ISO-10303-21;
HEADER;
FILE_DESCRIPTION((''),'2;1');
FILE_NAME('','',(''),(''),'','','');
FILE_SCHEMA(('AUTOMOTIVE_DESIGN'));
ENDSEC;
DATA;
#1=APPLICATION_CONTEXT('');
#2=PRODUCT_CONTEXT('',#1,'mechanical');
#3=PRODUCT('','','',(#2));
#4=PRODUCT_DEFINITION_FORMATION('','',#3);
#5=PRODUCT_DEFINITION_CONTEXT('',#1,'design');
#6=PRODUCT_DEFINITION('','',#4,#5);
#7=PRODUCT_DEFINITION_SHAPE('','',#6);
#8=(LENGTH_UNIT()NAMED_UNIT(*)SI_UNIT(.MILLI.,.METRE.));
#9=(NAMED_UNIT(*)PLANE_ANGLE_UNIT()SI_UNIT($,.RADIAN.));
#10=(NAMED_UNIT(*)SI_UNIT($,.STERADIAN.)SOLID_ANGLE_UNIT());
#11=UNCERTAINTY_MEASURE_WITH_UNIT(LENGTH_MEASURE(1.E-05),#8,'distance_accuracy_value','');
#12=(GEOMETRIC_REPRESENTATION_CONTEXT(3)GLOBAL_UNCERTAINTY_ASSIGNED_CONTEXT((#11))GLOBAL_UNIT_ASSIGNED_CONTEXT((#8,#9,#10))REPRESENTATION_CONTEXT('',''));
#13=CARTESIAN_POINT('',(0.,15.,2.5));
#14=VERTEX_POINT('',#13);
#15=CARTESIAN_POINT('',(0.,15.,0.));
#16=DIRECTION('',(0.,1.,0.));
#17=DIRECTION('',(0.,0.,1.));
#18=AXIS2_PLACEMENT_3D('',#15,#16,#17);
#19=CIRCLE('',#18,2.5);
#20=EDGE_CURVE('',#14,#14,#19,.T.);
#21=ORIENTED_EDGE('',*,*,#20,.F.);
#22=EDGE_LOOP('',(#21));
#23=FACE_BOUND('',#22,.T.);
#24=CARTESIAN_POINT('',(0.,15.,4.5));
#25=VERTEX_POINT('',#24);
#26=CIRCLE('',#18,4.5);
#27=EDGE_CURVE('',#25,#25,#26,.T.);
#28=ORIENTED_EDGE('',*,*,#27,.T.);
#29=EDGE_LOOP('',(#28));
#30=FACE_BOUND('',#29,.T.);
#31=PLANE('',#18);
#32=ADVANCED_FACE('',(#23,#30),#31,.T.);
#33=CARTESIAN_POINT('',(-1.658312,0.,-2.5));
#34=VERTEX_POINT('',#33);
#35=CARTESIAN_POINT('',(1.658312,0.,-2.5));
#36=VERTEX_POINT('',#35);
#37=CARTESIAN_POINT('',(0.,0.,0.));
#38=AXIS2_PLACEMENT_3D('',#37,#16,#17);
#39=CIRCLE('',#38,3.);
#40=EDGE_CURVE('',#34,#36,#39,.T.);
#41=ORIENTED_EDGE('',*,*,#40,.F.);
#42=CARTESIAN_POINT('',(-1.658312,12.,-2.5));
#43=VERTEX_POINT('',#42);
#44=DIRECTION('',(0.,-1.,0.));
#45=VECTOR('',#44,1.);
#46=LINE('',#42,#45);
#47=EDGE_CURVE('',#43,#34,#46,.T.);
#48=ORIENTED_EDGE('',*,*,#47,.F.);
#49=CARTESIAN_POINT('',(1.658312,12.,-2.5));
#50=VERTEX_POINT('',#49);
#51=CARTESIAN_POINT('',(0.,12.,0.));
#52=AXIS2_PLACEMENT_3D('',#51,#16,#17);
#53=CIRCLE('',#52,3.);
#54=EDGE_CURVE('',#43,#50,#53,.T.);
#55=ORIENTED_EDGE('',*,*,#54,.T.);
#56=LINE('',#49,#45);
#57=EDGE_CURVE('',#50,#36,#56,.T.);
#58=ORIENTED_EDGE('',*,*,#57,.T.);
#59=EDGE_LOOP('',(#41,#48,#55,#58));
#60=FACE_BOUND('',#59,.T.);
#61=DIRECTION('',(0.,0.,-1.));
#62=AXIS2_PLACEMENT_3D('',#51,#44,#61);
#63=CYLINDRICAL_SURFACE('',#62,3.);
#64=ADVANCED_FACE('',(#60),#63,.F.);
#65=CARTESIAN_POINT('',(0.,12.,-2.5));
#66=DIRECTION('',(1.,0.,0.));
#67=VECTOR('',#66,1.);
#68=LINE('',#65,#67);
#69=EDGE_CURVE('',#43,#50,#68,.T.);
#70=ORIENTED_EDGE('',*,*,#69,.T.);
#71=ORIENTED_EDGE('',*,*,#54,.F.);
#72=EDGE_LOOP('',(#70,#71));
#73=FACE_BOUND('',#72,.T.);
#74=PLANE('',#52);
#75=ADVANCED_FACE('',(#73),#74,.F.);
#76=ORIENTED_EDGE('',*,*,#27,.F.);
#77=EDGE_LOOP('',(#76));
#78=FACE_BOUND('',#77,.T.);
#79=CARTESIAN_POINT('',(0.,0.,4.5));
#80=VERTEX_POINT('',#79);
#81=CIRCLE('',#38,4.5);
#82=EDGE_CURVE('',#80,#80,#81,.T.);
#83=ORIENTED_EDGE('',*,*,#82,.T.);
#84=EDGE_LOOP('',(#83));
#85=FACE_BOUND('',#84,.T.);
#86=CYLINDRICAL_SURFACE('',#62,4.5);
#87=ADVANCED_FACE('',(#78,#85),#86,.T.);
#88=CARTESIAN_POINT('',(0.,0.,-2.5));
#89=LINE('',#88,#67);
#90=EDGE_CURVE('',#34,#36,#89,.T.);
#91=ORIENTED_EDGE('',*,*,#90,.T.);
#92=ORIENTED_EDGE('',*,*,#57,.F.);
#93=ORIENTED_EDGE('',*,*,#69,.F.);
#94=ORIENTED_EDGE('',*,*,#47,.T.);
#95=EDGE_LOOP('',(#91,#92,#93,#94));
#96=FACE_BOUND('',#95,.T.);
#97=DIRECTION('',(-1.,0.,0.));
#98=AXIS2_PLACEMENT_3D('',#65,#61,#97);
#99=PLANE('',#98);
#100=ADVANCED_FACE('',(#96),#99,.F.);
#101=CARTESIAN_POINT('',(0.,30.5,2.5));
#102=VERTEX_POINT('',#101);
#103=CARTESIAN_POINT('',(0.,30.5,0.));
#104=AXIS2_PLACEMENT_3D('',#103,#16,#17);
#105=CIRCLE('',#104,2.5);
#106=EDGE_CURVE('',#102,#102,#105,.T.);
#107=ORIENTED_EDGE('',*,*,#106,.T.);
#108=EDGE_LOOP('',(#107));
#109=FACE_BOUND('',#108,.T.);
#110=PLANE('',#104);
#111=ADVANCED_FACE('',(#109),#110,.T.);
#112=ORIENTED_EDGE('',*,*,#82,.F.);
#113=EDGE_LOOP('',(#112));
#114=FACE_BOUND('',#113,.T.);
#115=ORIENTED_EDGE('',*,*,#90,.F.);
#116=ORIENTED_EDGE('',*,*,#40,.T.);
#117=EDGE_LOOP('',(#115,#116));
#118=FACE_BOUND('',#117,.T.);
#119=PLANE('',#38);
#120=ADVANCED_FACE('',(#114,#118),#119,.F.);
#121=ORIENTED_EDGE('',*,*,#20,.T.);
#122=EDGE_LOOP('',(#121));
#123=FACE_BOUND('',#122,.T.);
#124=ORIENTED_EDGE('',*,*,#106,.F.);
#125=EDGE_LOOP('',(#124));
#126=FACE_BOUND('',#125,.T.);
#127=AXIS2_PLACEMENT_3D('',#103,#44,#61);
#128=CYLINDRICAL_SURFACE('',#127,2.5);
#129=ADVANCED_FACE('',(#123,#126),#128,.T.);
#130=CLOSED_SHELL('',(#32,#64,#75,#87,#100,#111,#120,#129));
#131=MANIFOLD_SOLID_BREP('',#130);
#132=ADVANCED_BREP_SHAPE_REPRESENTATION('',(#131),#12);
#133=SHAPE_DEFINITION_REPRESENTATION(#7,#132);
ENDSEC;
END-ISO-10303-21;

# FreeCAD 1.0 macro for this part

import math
import FreeCAD as App
import Part
import Sketcher

doc = App.newDocument("Part")
body = doc.addObject("PartDesign::Body", "Body")

sketch1 = doc.addObject("Sketcher::SketchObject", "Sketch")
body.addObject(sketch1)
sketch1.AttachmentSupport = (doc.XZ_Plane, [""])
sketch1.MapMode = "FlatFace"
sketch1.addGeometry([
    Part.Circle(App.Vector(0, 0, 0), App.Vector(0, 0, 1), 4.5),
    Part.LineSegment(App.Vector(-1.658312, -2.5, 0), App.Vector(1.658312, -2.5, 0)),
    Part.ArcOfCircle(Part.Circle(App.Vector(0, 0, 0), App.Vector(0, 0, 1), 3), math.radians(-56.44269), math.radians(236.44269)),
], False)
sketch1.addConstraint([
    Sketcher.Constraint("Coincident", 1, 1, 2, 2),
    Sketcher.Constraint("Coincident", 2, 1, 1, 2),
    Sketcher.Constraint("Horizontal", 1),
    Sketcher.Constraint("Coincident", 0, 3, -1, 1),
    Sketcher.Constraint("Coincident", 2, 3, -1, 1),
    Sketcher.Constraint("Diameter", 0, 9.0),
    Sketcher.Constraint("Radius", 2, 3.0),
    Sketcher.Constraint("DistanceY", 1, 1, -1, 1, 2.5),
])
pad1 = doc.addObject("PartDesign::Pad", "Pad")
body.addObject(pad1)
pad1.Profile = sketch1
pad1.Length = 12
pad1.Reversed = True

sketch2 = doc.addObject("Sketcher::SketchObject", "Sketch001")
body.addObject(sketch2)
sketch2.AttachmentSupport = (doc.XZ_Plane, [""])
sketch2.MapMode = "FlatFace"
sketch2.AttachmentOffset = App.Placement(App.Vector(0, 0, -12), App.Rotation())
sketch2.addGeometry(Part.Circle(App.Vector(0, 0, 0), App.Vector(0, 0, 1), 4.5), False)
sketch2.addConstraint([
    Sketcher.Constraint("Coincident", 0, 3, -1, 1),
    Sketcher.Constraint("Diameter", 0, 9.0),
])
pad2 = doc.addObject("PartDesign::Pad", "Pad001")
body.addObject(pad2)
pad2.Profile = sketch2
pad2.Length = 3
pad2.Reversed = True

sketch3 = doc.addObject("Sketcher::SketchObject", "Sketch002")
body.addObject(sketch3)
sketch3.AttachmentSupport = (doc.XZ_Plane, [""])
sketch3.MapMode = "FlatFace"
sketch3.AttachmentOffset = App.Placement(App.Vector(0, 0, -15), App.Rotation())
sketch3.addGeometry(Part.Circle(App.Vector(0, 0, 0), App.Vector(0, 0, 1), 2.5), False)
sketch3.addConstraint([
    Sketcher.Constraint("Coincident", 0, 3, -1, 1),
    Sketcher.Constraint("Diameter", 0, 5.0),
])
pad3 = doc.addObject("PartDesign::Pad", "Pad002")
body.addObject(pad3)
pad3.Profile = sketch3
pad3.Length = 15.5
pad3.Reversed = True

doc.recompute()
